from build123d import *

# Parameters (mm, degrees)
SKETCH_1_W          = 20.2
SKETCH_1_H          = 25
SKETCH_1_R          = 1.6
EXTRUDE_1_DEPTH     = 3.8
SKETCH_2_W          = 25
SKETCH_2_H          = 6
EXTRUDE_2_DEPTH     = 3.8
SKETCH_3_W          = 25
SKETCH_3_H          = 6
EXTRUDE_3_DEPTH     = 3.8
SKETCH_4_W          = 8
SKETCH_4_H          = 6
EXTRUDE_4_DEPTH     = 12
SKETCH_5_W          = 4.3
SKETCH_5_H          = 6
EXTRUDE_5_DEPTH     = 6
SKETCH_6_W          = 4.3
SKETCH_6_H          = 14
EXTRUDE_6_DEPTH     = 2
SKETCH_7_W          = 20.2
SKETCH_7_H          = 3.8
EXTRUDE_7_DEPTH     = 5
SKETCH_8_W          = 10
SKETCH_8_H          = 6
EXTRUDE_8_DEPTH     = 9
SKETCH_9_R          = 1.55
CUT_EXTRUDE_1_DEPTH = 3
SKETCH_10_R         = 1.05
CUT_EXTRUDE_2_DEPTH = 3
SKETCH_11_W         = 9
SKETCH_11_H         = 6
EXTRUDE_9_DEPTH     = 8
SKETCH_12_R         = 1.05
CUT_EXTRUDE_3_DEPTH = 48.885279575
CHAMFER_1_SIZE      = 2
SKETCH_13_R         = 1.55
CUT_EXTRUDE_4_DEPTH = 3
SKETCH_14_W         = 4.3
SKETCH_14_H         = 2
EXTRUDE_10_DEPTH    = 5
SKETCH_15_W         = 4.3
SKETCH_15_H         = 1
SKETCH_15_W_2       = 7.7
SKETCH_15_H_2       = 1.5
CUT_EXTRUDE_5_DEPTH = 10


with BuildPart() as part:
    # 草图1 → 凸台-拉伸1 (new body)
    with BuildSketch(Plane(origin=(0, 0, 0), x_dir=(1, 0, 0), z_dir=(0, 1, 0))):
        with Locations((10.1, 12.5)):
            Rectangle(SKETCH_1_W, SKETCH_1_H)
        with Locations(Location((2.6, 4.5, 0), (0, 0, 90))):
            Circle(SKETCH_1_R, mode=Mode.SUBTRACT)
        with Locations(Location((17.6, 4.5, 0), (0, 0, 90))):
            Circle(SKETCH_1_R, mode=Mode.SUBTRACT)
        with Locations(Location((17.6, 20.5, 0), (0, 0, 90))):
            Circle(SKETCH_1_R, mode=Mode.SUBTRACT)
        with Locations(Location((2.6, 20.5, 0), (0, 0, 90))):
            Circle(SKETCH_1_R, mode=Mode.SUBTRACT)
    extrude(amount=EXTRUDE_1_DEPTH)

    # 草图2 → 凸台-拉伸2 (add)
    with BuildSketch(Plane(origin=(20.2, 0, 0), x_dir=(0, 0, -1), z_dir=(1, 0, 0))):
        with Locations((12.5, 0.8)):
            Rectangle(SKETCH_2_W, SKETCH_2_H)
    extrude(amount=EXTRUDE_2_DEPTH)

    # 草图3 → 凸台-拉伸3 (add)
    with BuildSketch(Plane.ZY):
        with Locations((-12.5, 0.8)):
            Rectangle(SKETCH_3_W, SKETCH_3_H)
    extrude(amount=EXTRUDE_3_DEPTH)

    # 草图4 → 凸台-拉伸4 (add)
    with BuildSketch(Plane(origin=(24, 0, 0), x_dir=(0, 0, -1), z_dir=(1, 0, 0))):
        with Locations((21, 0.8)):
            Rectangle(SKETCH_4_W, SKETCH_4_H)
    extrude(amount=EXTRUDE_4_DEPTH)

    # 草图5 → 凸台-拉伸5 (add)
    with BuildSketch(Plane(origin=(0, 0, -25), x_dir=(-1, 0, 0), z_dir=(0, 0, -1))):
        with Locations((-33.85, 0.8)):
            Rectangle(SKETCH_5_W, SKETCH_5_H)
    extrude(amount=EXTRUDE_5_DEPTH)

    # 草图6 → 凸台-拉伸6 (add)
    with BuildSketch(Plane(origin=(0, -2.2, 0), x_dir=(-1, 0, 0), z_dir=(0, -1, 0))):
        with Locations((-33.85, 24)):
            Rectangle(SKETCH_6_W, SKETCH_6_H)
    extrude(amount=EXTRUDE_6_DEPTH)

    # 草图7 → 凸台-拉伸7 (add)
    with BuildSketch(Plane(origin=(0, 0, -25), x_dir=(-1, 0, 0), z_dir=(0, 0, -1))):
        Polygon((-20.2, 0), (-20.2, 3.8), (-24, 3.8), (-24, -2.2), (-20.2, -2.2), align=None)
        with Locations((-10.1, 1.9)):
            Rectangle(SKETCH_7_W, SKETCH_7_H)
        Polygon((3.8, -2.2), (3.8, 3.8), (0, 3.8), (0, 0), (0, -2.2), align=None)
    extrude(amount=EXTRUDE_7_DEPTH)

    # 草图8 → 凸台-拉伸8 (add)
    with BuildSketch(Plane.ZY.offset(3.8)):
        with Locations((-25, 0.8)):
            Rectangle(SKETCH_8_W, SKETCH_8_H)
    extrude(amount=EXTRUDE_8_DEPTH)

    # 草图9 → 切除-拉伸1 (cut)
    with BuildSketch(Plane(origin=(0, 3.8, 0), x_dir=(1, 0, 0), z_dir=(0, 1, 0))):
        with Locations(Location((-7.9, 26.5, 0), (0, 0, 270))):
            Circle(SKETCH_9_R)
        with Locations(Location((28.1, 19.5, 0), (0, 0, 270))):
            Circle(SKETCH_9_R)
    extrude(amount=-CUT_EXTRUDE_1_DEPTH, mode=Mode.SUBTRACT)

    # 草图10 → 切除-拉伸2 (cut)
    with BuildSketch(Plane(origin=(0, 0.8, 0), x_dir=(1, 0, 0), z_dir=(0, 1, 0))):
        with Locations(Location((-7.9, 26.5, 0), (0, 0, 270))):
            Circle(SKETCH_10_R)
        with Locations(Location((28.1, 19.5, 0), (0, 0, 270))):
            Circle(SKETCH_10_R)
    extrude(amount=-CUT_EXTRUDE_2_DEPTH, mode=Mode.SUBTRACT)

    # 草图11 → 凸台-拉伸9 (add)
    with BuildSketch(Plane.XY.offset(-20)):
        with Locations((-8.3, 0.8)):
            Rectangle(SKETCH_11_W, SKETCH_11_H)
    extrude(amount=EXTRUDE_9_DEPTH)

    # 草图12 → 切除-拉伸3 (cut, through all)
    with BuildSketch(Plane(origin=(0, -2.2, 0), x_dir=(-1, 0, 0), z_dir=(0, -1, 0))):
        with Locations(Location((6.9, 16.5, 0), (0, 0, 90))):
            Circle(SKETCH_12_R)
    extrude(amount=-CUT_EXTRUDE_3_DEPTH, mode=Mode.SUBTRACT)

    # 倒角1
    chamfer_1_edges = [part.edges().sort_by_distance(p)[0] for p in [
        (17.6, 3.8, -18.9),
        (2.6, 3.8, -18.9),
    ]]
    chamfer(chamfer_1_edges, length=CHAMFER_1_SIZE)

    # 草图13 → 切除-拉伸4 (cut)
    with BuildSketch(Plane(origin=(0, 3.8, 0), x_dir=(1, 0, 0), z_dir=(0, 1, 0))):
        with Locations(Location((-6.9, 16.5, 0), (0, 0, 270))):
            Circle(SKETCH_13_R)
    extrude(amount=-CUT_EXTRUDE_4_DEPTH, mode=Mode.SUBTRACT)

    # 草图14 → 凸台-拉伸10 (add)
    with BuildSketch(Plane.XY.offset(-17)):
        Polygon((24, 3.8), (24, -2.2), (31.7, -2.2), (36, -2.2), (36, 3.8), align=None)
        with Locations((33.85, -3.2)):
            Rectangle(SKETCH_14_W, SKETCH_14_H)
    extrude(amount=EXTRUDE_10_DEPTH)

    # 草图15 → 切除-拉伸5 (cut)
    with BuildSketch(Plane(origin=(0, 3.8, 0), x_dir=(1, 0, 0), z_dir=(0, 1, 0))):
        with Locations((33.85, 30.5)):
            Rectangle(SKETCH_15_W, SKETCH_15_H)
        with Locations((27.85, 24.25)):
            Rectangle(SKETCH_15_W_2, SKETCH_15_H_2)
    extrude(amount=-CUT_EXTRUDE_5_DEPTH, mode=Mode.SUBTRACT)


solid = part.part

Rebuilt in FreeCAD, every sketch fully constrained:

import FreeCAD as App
import Part
import Sketcher

V = App.Vector


def edges_at(feature, points):
    """Names of the edges that pass closest to the given points."""
    edges = feature.Shape.Edges
    near = lambda p: min(range(len(edges)), key=lambda i: edges[i].distToShape(Part.Vertex(*p))[0])
    return sorted({f"Edge{near(p) + 1}" for p in points})


def add_polygon(sketch, points):
    """Adds a closed chain of lines whose ends are joined by coincident constraints."""
    first, n = sketch.GeometryCount, len(points)
    for a, b in zip(points, points[1:] + points[:1]):
        sketch.addGeometry(Part.LineSegment(App.Vector(*a, 0), App.Vector(*b, 0)), False)
    for i in range(n):
        sketch.addConstraint(Sketcher.Constraint("Coincident", first + i, 2, first + (i + 1) % n, 1))

doc = App.newDocument("Part")
body = doc.addObject("PartDesign::Body", "Body")

sketch1 = body.newObject("Sketcher::SketchObject", "Sketch")
sketch1.AttachmentSupport = (doc.getObject("XZ_Plane"), [""])
sketch1.MapMode = "FlatFace"
add_polygon(sketch1, [(0, -25), (0, 0), (20.2, 0), (20.2, -25)])
sketch1.addGeometry(Part.Circle(V(2.6, -4.5, 0), V(0, 0, 1), 1.6), False)
sketch1.addGeometry(Part.Circle(V(17.6, -4.5, 0), V(0, 0, 1), 1.6), False)
sketch1.addGeometry(Part.Circle(V(2.6, -20.5, 0), V(0, 0, 1), 1.6), False)
sketch1.addGeometry(Part.Circle(V(17.6, -20.5, 0), V(0, 0, 1), 1.6), False)
sketch1.addConstraint(Sketcher.Constraint("Vertical", 0))
sketch1.addConstraint(Sketcher.Constraint("Horizontal", 1))
sketch1.addConstraint(Sketcher.Constraint("Vertical", 2))
sketch1.addConstraint(Sketcher.Constraint("Horizontal", 3))
sketch1.addConstraint(Sketcher.Constraint("Coincident", 0, 2, -1, 1))
sketch1.addConstraint(Sketcher.Constraint("Equal", 4, 5))
sketch1.addConstraint(Sketcher.Constraint("Equal", 5, 6))
sketch1.addConstraint(Sketcher.Constraint("Equal", 6, 7))
sketch1.addConstraint(Sketcher.Constraint("Horizontal", 4, 3, 5, 3))
sketch1.addConstraint(Sketcher.Constraint("Horizontal", 6, 3, 7, 3))
sketch1.addConstraint(Sketcher.Constraint("Vertical", 4, 3, 6, 3))
sketch1.addConstraint(Sketcher.Constraint("Vertical", 5, 3, 7, 3))
sketch1.addConstraint(Sketcher.Constraint("Diameter", 4, 3.2))
sketch1.addConstraint(Sketcher.Constraint("DistanceY", 0, 1, 0, 2, 25.0))
sketch1.addConstraint(Sketcher.Constraint("DistanceX", 1, 1, 1, 2, 20.2))
sketch1.addConstraint(Sketcher.Constraint("DistanceX", 4, 3, 5, 3, 15.0))
sketch1.addConstraint(Sketcher.Constraint("DistanceY", 6, 3, 4, 3, 16.0))
sketch1.addConstraint(Sketcher.Constraint("DistanceX", -1, 1, 4, 3, 2.6))
sketch1.addConstraint(Sketcher.Constraint("DistanceY", 4, 3, -1, 1, 4.5))
pad1 = body.newObject("PartDesign::Pad", "Pad")
pad1.Profile = sketch1
pad1.Length = 3.8
pad1.Reversed = True

sketch2 = body.newObject("Sketcher::SketchObject", "Sketch001")
sketch2.AttachmentSupport = (doc.getObject("YZ_Plane"), [""])
sketch2.MapMode = "FlatFace"
sketch2.AttachmentOffset = App.Placement(V(0, 0, 20.2), App.Rotation())
add_polygon(sketch2, [(3.8, 0), (-2.2, 0), (-2.2, -25), (3.8, -25)])
sketch2.addConstraint(Sketcher.Constraint("Horizontal", 0))
sketch2.addConstraint(Sketcher.Constraint("Vertical", 1))
sketch2.addConstraint(Sketcher.Constraint("Horizontal", 2))
sketch2.addConstraint(Sketcher.Constraint("Vertical", 3))
sketch2.addConstraint(Sketcher.Constraint("PointOnObject", 0, 2, -1))
sketch2.addConstraint(Sketcher.Constraint("DistanceX", 0, 2, 0, 1, 6.0))
sketch2.addConstraint(Sketcher.Constraint("DistanceY", 1, 2, 1, 1, 25.0))
sketch2.addConstraint(Sketcher.Constraint("DistanceX", 0, 2, -1, 1, 2.2))
pad2 = body.newObject("PartDesign::Pad", "Pad001")
pad2.Profile = sketch2
pad2.Length = 3.8

sketch3 = body.newObject("Sketcher::SketchObject", "Sketch002")
sketch3.AttachmentSupport = (doc.getObject("YZ_Plane"), [""])
sketch3.MapMode = "FlatFace"
add_polygon(sketch3, [(3.8, -25), (-2.2, -25), (-2.2, 0), (3.8, 0)])
sketch3.addConstraint(Sketcher.Constraint("Horizontal", 0))
sketch3.addConstraint(Sketcher.Constraint("Vertical", 1))
sketch3.addConstraint(Sketcher.Constraint("Horizontal", 2))
sketch3.addConstraint(Sketcher.Constraint("Vertical", 3))
sketch3.addConstraint(Sketcher.Constraint("PointOnObject", 1, 2, -1))
sketch3.addConstraint(Sketcher.Constraint("DistanceX", 0, 2, 0, 1, 6.0))
sketch3.addConstraint(Sketcher.Constraint("DistanceY", 1, 1, 1, 2, 25.0))
sketch3.addConstraint(Sketcher.Constraint("DistanceX", 0, 2, -1, 1, 2.2))
pad3 = body.newObject("PartDesign::Pad", "Pad002")
pad3.Profile = sketch3
pad3.Length = 3.8
pad3.Reversed = True

sketch4 = body.newObject("Sketcher::SketchObject", "Sketch003")
sketch4.AttachmentSupport = (doc.getObject("YZ_Plane"), [""])
sketch4.MapMode = "FlatFace"
sketch4.AttachmentOffset = App.Placement(V(0, 0, 24), App.Rotation())
add_polygon(sketch4, [(3.8, -17), (-2.2, -17), (-2.2, -25), (3.8, -25)])
sketch4.addConstraint(Sketcher.Constraint("Horizontal", 0))
sketch4.addConstraint(Sketcher.Constraint("Vertical", 1))
sketch4.addConstraint(Sketcher.Constraint("Horizontal", 2))
sketch4.addConstraint(Sketcher.Constraint("Vertical", 3))
sketch4.addConstraint(Sketcher.Constraint("DistanceX", 0, 2, 0, 1, 6.0))
sketch4.addConstraint(Sketcher.Constraint("DistanceY", 1, 2, 1, 1, 8.0))
sketch4.addConstraint(Sketcher.Constraint("DistanceY", 0, 2, -1, 1, 17.0))
sketch4.addConstraint(Sketcher.Constraint("DistanceX", 0, 2, -1, 1, 2.2))
pad4 = body.newObject("PartDesign::Pad", "Pad003")
pad4.Profile = sketch4
pad4.Length = 12

sketch5 = body.newObject("Sketcher::SketchObject", "Sketch004")
sketch5.AttachmentSupport = (doc.getObject("XY_Plane"), [""])
sketch5.MapMode = "FlatFace"
sketch5.AttachmentOffset = App.Placement(V(0, 0, -25), App.Rotation())
add_polygon(sketch5, [(36, 3.8), (36, -2.2), (31.7, -2.2), (31.7, 3.8)])
sketch5.addConstraint(Sketcher.Constraint("Vertical", 0))
sketch5.addConstraint(Sketcher.Constraint("Horizontal", 1))
sketch5.addConstraint(Sketcher.Constraint("Vertical", 2))
sketch5.addConstraint(Sketcher.Constraint("Horizontal", 3))
sketch5.addConstraint(Sketcher.Constraint("DistanceY", 0, 2, 0, 1, 6.0))
sketch5.addConstraint(Sketcher.Constraint("DistanceX", 1, 2, 1, 1, 4.3))
sketch5.addConstraint(Sketcher.Constraint("DistanceX", -1, 1, 0, 2, 36.0))
sketch5.addConstraint(Sketcher.Constraint("DistanceY", 0, 2, -1, 1, 2.2))
pad5 = body.newObject("PartDesign::Pad", "Pad004")
pad5.Profile = sketch5
pad5.Length = 6
pad5.Reversed = True

sketch6 = body.newObject("Sketcher::SketchObject", "Sketch005")
sketch6.AttachmentSupport = (doc.getObject("XZ_Plane"), [""])
sketch6.MapMode = "FlatFace"
sketch6.AttachmentOffset = App.Placement(V(0, 0, 2.2), App.Rotation())
add_polygon(sketch6, [(36, -31), (36, -17), (31.7, -17), (31.7, -31)])
sketch6.addConstraint(Sketcher.Constraint("Vertical", 0))
sketch6.addConstraint(Sketcher.Constraint("Horizontal", 1))
sketch6.addConstraint(Sketcher.Constraint("Vertical", 2))
sketch6.addConstraint(Sketcher.Constraint("Horizontal", 3))
sketch6.addConstraint(Sketcher.Constraint("DistanceY", 0, 1, 0, 2, 14.0))
sketch6.addConstraint(Sketcher.Constraint("DistanceX", 1, 2, 1, 1, 4.3))
sketch6.addConstraint(Sketcher.Constraint("DistanceX", -1, 1, 0, 2, 36.0))
sketch6.addConstraint(Sketcher.Constraint("DistanceY", 0, 2, -1, 1, 17.0))
pad6 = body.newObject("PartDesign::Pad", "Pad005")
pad6.Profile = sketch6
pad6.Length = 2

sketch7 = body.newObject("Sketcher::SketchObject", "Sketch006")
sketch7.AttachmentSupport = (doc.getObject("XY_Plane"), [""])
sketch7.MapMode = "FlatFace"
sketch7.AttachmentOffset = App.Placement(V(0, 0, -25), App.Rotation())
add_polygon(sketch7, [(24, 3.8), (24, -2.2), (20.2, -2.2), (20.2, 0), (0, 0), (0, -2.2), (-3.8, -2.2), (-3.8, 3.8)])
sketch7.addConstraint(Sketcher.Constraint("Vertical", 0))
sketch7.addConstraint(Sketcher.Constraint("Horizontal", 1))
sketch7.addConstraint(Sketcher.Constraint("Vertical", 2))
sketch7.addConstraint(Sketcher.Constraint("Horizontal", 3))
sketch7.addConstraint(Sketcher.Constraint("Vertical", 4))
sketch7.addConstraint(Sketcher.Constraint("Horizontal", 5))
sketch7.addConstraint(Sketcher.Constraint("Vertical", 6))
sketch7.addConstraint(Sketcher.Constraint("Horizontal", 7))
sketch7.addConstraint(Sketcher.Constraint("Coincident", 3, 2, -1, 1))
sketch7.addConstraint(Sketcher.Constraint("Horizontal", 1, 2, 4, 2))
sketch7.addConstraint(Sketcher.Constraint("Equal", 1, 5))
sketch7.addConstraint(Sketcher.Constraint("DistanceY", 0, 2, 0, 1, 6.0))
sketch7.addConstraint(Sketcher.Constraint("DistanceX", 1, 2, 1, 1, 3.8))
sketch7.addConstraint(Sketcher.Constraint("DistanceX", 3, 2, 3, 1, 20.2))
sketch7.addConstraint(Sketcher.Constraint("DistanceY", 2, 1, 2, 2, 2.2))
pad7 = body.newObject("PartDesign::Pad", "Pad006")
pad7.Profile = sketch7
pad7.Length = 5
pad7.Reversed = True

sketch8 = body.newObject("Sketcher::SketchObject", "Sketch007")
sketch8.AttachmentSupport = (doc.getObject("YZ_Plane"), [""])
sketch8.MapMode = "FlatFace"
sketch8.AttachmentOffset = App.Placement(V(0, 0, -3.8), App.Rotation())
add_polygon(sketch8, [(3.8, -30), (-2.2, -30), (-2.2, -20), (3.8, -20)])
sketch8.addConstraint(Sketcher.Constraint("Horizontal", 0))
sketch8.addConstraint(Sketcher.Constraint("Vertical", 1))
sketch8.addConstraint(Sketcher.Constraint("Horizontal", 2))
sketch8.addConstraint(Sketcher.Constraint("Vertical", 3))
sketch8.addConstraint(Sketcher.Constraint("DistanceX", 0, 2, 0, 1, 6.0))
sketch8.addConstraint(Sketcher.Constraint("DistanceY", 1, 1, 1, 2, 10.0))
sketch8.addConstraint(Sketcher.Constraint("DistanceY", 0, 2, -1, 1, 30.0))
sketch8.addConstraint(Sketcher.Constraint("DistanceX", 0, 2, -1, 1, 2.2))
pad8 = body.newObject("PartDesign::Pad", "Pad007")
pad8.Profile = sketch8
pad8.Length = 9
pad8.Reversed = True

sketch9 = body.newObject("Sketcher::SketchObject", "Sketch008")
sketch9.AttachmentSupport = (doc.getObject("XZ_Plane"), [""])
sketch9.MapMode = "FlatFace"
sketch9.AttachmentOffset = App.Placement(V(0, 0, -3.8), App.Rotation())
sketch9.addGeometry(Part.Circle(V(-7.9, -26.5, 0), V(0, 0, 1), 1.55), False)
sketch9.addGeometry(Part.Circle(V(28.1, -19.5, 0), V(0, 0, 1), 1.55), False)
sketch9.addConstraint(Sketcher.Constraint("Equal", 0, 1))
sketch9.addConstraint(Sketcher.Constraint("Diameter", 0, 3.1))
sketch9.addConstraint(Sketcher.Constraint("DistanceX", 0, 3, 1, 3, 36.0))
sketch9.addConstraint(Sketcher.Constraint("DistanceY", 0, 3, 1, 3, 7.0))
sketch9.addConstraint(Sketcher.Constraint("DistanceX", 0, 3, -1, 1, 7.9))
sketch9.addConstraint(Sketcher.Constraint("DistanceY", 0, 3, -1, 1, 26.5))
pocket1 = body.newObject("PartDesign::Pocket", "Pocket")
pocket1.Profile = sketch9
pocket1.Length = 3
pocket1.Reversed = True

sketch10 = body.newObject("Sketcher::SketchObject", "Sketch009")
sketch10.AttachmentSupport = (doc.getObject("XZ_Plane"), [""])
sketch10.MapMode = "FlatFace"
sketch10.AttachmentOffset = App.Placement(V(0, 0, -0.8), App.Rotation())
sketch10.addGeometry(Part.Circle(V(-7.9, -26.5, 0), V(0, 0, 1), 1.05), False)
sketch10.addGeometry(Part.Circle(V(28.1, -19.5, 0), V(0, 0, 1), 1.05), False)
sketch10.addConstraint(Sketcher.Constraint("Equal", 0, 1))
sketch10.addConstraint(Sketcher.Constraint("Diameter", 0, 2.1))
sketch10.addConstraint(Sketcher.Constraint("DistanceX", 0, 3, 1, 3, 36.0))
sketch10.addConstraint(Sketcher.Constraint("DistanceY", 0, 3, 1, 3, 7.0))
sketch10.addConstraint(Sketcher.Constraint("DistanceX", 0, 3, -1, 1, 7.9))
sketch10.addConstraint(Sketcher.Constraint("DistanceY", 0, 3, -1, 1, 26.5))
pocket2 = body.newObject("PartDesign::Pocket", "Pocket001")
pocket2.Profile = sketch10
pocket2.Length = 3
pocket2.Reversed = True

sketch11 = body.newObject("Sketcher::SketchObject", "Sketch010")
sketch11.AttachmentSupport = (doc.getObject("XY_Plane"), [""])
sketch11.MapMode = "FlatFace"
sketch11.AttachmentOffset = App.Placement(V(0, 0, -20), App.Rotation())
add_polygon(sketch11, [(-12.8, 3.8), (-12.8, -2.2), (-3.8, -2.2), (-3.8, 3.8)])
sketch11.addConstraint(Sketcher.Constraint("Vertical", 0))
sketch11.addConstraint(Sketcher.Constraint("Horizontal", 1))
sketch11.addConstraint(Sketcher.Constraint("Vertical", 2))
sketch11.addConstraint(Sketcher.Constraint("Horizontal", 3))
sketch11.addConstraint(Sketcher.Constraint("DistanceX", 1, 1, 1, 2, 9.0))
sketch11.addConstraint(Sketcher.Constraint("DistanceY", 0, 2, 0, 1, 6.0))
sketch11.addConstraint(Sketcher.Constraint("DistanceX", 0, 2, -1, 1, 12.8))
sketch11.addConstraint(Sketcher.Constraint("DistanceY", 0, 2, -1, 1, 2.2))
pad9 = body.newObject("PartDesign::Pad", "Pad008")
pad9.Profile = sketch11
pad9.Length = 8

sketch12 = body.newObject("Sketcher::SketchObject", "Sketch011")
sketch12.AttachmentSupport = (doc.getObject("XZ_Plane"), [""])
sketch12.MapMode = "FlatFace"
sketch12.AttachmentOffset = App.Placement(V(0, 0, 2.2), App.Rotation())
sketch12.addGeometry(Part.Circle(V(-6.9, -16.5, 0), V(0, 0, 1), 1.05), False)
sketch12.addConstraint(Sketcher.Constraint("Diameter", 0, 2.1))
sketch12.addConstraint(Sketcher.Constraint("DistanceX", 0, 3, -1, 1, 6.9))
sketch12.addConstraint(Sketcher.Constraint("DistanceY", 0, 3, -1, 1, 16.5))
pocket3 = body.newObject("PartDesign::Pocket", "Pocket002")
pocket3.Profile = sketch12
pocket3.Type = "ThroughAll"
doc.recompute()

chamfer = body.newObject("PartDesign::Chamfer", "Chamfer")
chamfer.Base = (pocket3, edges_at(pocket3, [(17.6, 3.8, -18.9), (2.6, 3.8, -18.9)]))
chamfer.Size = 2

sketch13 = body.newObject("Sketcher::SketchObject", "Sketch012")
sketch13.AttachmentSupport = (doc.getObject("XZ_Plane"), [""])
sketch13.MapMode = "FlatFace"
sketch13.AttachmentOffset = App.Placement(V(0, 0, -3.8), App.Rotation())
sketch13.addGeometry(Part.Circle(V(-6.9, -16.5, 0), V(0, 0, 1), 1.55), False)
sketch13.addConstraint(Sketcher.Constraint("Diameter", 0, 3.1))
sketch13.addConstraint(Sketcher.Constraint("DistanceX", 0, 3, -1, 1, 6.9))
sketch13.addConstraint(Sketcher.Constraint("DistanceY", 0, 3, -1, 1, 16.5))
pocket4 = body.newObject("PartDesign::Pocket", "Pocket003")
pocket4.Profile = sketch13
pocket4.Length = 3
pocket4.Reversed = True

sketch14 = body.newObject("Sketcher::SketchObject", "Sketch013")
sketch14.AttachmentSupport = (doc.getObject("XY_Plane"), [""])
sketch14.MapMode = "FlatFace"
sketch14.AttachmentOffset = App.Placement(V(0, 0, -17), App.Rotation())
add_polygon(sketch14, [(24, 3.8), (24, -2.2), (31.7, -2.2), (31.7, -4.2), (36, -4.2), (36, 3.8)])
sketch14.addConstraint(Sketcher.Constraint("Vertical", 0))
sketch14.addConstraint(Sketcher.Constraint("Horizontal", 1))
sketch14.addConstraint(Sketcher.Constraint("Vertical", 2))
sketch14.addConstraint(Sketcher.Constraint("Horizontal", 3))
sketch14.addConstraint(Sketcher.Constraint("Vertical", 4))
sketch14.addConstraint(Sketcher.Constraint("Horizontal", 5))
sketch14.addConstraint(Sketcher.Constraint("DistanceX", 5, 2, 5, 1, 12.0))
sketch14.addConstraint(Sketcher.Constraint("DistanceY", 0, 2, 0, 1, 6.0))
sketch14.addConstraint(Sketcher.Constraint("DistanceY", 2, 2, 2, 1, 2.0))
sketch14.addConstraint(Sketcher.Constraint("DistanceX", 1, 1, 1, 2, 7.7))
sketch14.addConstraint(Sketcher.Constraint("DistanceX", -1, 1, 0, 2, 24.0))
sketch14.addConstraint(Sketcher.Constraint("DistanceY", 0, 2, -1, 1, 2.2))
pad10 = body.newObject("PartDesign::Pad", "Pad009")
pad10.Profile = sketch14
pad10.Length = 5

sketch15 = body.newObject("Sketcher::SketchObject", "Sketch014")
sketch15.AttachmentSupport = (doc.getObject("XZ_Plane"), [""])
sketch15.MapMode = "FlatFace"
sketch15.AttachmentOffset = App.Placement(V(0, 0, -3.8), App.Rotation())
add_polygon(sketch15, [(31.7, -31), (31.7, -30), (36, -30), (36, -31)])
add_polygon(sketch15, [(24, -25), (24, -23.5), (31.7, -23.5), (31.7, -25)])
sketch15.addConstraint(Sketcher.Constraint("Vertical", 0))
sketch15.addConstraint(Sketcher.Constraint("Horizontal", 1))
sketch15.addConstraint(Sketcher.Constraint("Vertical", 2))
sketch15.addConstraint(Sketcher.Constraint("Horizontal", 3))
sketch15.addConstraint(Sketcher.Constraint("Vertical", 4))
sketch15.addConstraint(Sketcher.Constraint("Horizontal", 5))
sketch15.addConstraint(Sketcher.Constraint("Vertical", 6))
sketch15.addConstraint(Sketcher.Constraint("Horizontal", 7))
sketch15.addConstraint(Sketcher.Constraint("Vertical", 3, 2, 5, 2))
sketch15.addConstraint(Sketcher.Constraint("DistanceY", 0, 1, 0, 2, 1.0))
sketch15.addConstraint(Sketcher.Constraint("DistanceX", 1, 1, 1, 2, 4.3))
sketch15.addConstraint(Sketcher.Constraint("DistanceX", 5, 1, 5, 2, 7.7))
sketch15.addConstraint(Sketcher.Constraint("DistanceY", 4, 1, 4, 2, 1.5))
sketch15.addConstraint(Sketcher.Constraint("DistanceY", 0, 2, -1, 1, 30.0))
sketch15.addConstraint(Sketcher.Constraint("DistanceX", -1, 1, 1, 2, 36.0))
sketch15.addConstraint(Sketcher.Constraint("DistanceY", 6, 2, -1, 1, 25.0))
pocket5 = body.newObject("PartDesign::Pocket", "Pocket004")
pocket5.Profile = sketch15
pocket5.Length = 10
pocket5.Reversed = True

doc.recompute()
